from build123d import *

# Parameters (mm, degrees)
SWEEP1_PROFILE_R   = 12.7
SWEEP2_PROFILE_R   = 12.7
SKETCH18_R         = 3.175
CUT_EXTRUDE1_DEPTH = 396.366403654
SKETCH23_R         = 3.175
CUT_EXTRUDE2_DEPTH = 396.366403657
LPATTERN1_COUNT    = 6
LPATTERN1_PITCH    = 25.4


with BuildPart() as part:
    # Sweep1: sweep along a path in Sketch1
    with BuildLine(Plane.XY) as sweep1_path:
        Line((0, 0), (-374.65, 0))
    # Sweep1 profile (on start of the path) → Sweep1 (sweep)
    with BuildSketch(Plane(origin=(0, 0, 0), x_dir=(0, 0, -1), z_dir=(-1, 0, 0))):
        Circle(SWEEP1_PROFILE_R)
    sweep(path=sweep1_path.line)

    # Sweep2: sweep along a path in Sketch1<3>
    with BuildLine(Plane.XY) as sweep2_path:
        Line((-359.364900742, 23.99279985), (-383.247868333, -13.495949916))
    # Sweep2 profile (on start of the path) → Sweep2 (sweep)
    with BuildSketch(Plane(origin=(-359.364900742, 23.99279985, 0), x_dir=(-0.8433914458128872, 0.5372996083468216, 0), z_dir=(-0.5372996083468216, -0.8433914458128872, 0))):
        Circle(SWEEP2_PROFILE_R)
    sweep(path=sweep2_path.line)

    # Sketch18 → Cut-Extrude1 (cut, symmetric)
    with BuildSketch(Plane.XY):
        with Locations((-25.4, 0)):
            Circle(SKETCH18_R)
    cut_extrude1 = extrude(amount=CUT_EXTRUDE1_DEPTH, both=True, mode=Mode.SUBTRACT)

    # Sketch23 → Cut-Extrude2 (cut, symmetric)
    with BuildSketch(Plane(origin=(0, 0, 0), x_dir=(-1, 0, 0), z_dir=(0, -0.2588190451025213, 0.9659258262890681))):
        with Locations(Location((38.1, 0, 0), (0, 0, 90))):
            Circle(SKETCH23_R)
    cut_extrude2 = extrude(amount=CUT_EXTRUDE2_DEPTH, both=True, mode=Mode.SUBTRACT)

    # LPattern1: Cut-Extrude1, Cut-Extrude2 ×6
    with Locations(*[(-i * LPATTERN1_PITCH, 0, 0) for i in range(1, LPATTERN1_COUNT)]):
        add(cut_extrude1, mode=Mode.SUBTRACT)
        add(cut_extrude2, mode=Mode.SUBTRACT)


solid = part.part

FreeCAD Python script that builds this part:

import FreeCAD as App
import Part
import Sketcher
from FreeCAD import Vector
Q = App.Units.Quantity

doc = App.newDocument("Part")
body = doc.addObject("PartDesign::Body", "Body")

sketch1 = body.newObject("Sketcher::SketchObject", "Sketch")
sketch1.AttachmentSupport = (doc.getObject("YZ_Plane"), [""])
sketch1.MapMode = "FlatFace"
sketch1.addGeometry(Part.Circle(Vector(0, 0, 0), Vector(0, 0, 1), 13), False)
sketch1.addConstraint(Sketcher.Constraint("Coincident", 0, 3, -1, 1))
sketch1.addConstraint(Sketcher.Constraint("Diameter", 0, Q("1 in")))

sketch2 = body.newObject("Sketcher::SketchObject", "Sketch001")
sketch2.AttachmentSupport = (doc.getObject("XY_Plane"), [""])
sketch2.MapMode = "FlatFace"
sketch2.addGeometry(Part.LineSegment(Vector(0, 0, 0), Vector(-375, 0, 0)), False)
sketch2.addConstraint(Sketcher.Constraint("Horizontal", 0))
sketch2.addConstraint(Sketcher.Constraint("Coincident", 0, 1, -1, 1))
sketch2.addConstraint(Sketcher.Constraint("DistanceX", 0, 2, 0, 1, Q("14.75 in")))
doc.recompute()

additivepipe = body.newObject("PartDesign::AdditivePipe", "AdditivePipe")
additivepipe.Profile = sketch1
additivepipe.Spine = (sketch2, ["Edge1"])

sketch3 = body.newObject("Sketcher::SketchObject", "Sketch002")
sketch3.Placement = App.Placement(Vector(-359.364901, 23.9928, 0), App.Rotation(Vector(-0.843391446, 0.537299608, 0), Vector(0, 0, -1), Vector(-0.537299608, -0.843391446, 0), "ZXY"))
sketch3.addGeometry(Part.Circle(Vector(0, 0, 0), Vector(0, 0, 1), 13), False)
sketch3.addConstraint(Sketcher.Constraint("Coincident", 0, 3, -1, 1))
sketch3.addConstraint(Sketcher.Constraint("Diameter", 0, Q("1 in")))

sketch4 = body.newObject("Sketcher::SketchObject", "Sketch003")
sketch4.Placement = App.Placement(Vector(-266.491966, 169.774106, 0), App.Rotation(Vector(-0.537299608, -0.843391446, 0), Vector(0, 0, 1), Vector(-0.843391446, 0.537299608, 0), "ZXY"))
sketch4.addGeometry(Part.LineSegment(Vector(173, 0, 0), Vector(217, 0, 0)), False)
sketch4.addConstraint(Sketcher.Constraint("Horizontal", 0))
sketch4.addConstraint(Sketcher.Constraint("PointOnObject", 0, 1, -1))
sketch4.addConstraint(Sketcher.Constraint("DistanceX", 0, 1, 0, 2, Q("1.75 in")))
sketch4.addConstraint(Sketcher.Constraint("DistanceX", -1, 1, 0, 1, 172.851298))
doc.recompute()

additivepipe2 = body.newObject("PartDesign::AdditivePipe", "AdditivePipe001")
additivepipe2.Profile = sketch3
additivepipe2.Spine = (sketch4, ["Edge1"])

sketch5 = body.newObject("Sketcher::SketchObject", "Sketch004")
sketch5.AttachmentSupport = (doc.getObject("XY_Plane"), [""])
sketch5.MapMode = "FlatFace"
sketch5.addGeometry(Part.Circle(Vector(-25.4, 0, 0), Vector(0, 0, 1), 3.2), False)
sketch5.addConstraint(Sketcher.Constraint("PointOnObject", 0, 3, -1))
sketch5.addConstraint(Sketcher.Constraint("Diameter", 0, Q("0.25 in")))
sketch5.addConstraint(Sketcher.Constraint("DistanceX", 0, 3, -1, 1, Q("1 in")))
pocket1 = body.newObject("PartDesign::Pocket", "Pocket")
pocket1.Profile = sketch5
pocket1.Length = 792.732807
pocket1.Midplane = True

sketch6 = body.newObject("Sketcher::SketchObject", "Sketch005")
sketch6.Placement = App.Placement(Vector(0, 0, 0), App.Rotation(Vector(-1, 0, 0), Vector(0, -0.965925826, -0.258819045), Vector(0, -0.258819045, 0.965925826), "ZXY"))
sketch6.addGeometry(Part.Circle(Vector(38.1, 0, 0), Vector(0, 0, 1), 3.2), False)
sketch6.addConstraint(Sketcher.Constraint("PointOnObject", 0, 3, -1))
sketch6.addConstraint(Sketcher.Constraint("Diameter", 0, Q("0.25 in")))
sketch6.addConstraint(Sketcher.Constraint("DistanceX", -1, 1, 0, 3, Q("1.5 in")))
pocket2 = body.newObject("PartDesign::Pocket", "Pocket001")
pocket2.Profile = sketch6
pocket2.Length = 792.732807
pocket2.Midplane = True
doc.recompute()

linearpattern = body.newObject("PartDesign::LinearPattern", "LinearPattern")
linearpattern.Originals = [pocket1, pocket2]
linearpattern.Direction = (doc.getObject("X_Axis"), [""])
linearpattern.Mode = "offset"
linearpattern.Offset = Q("1 in")
linearpattern.Occurrences = 6
linearpattern.Reversed = True
body.Tip = linearpattern

doc.recompute()
